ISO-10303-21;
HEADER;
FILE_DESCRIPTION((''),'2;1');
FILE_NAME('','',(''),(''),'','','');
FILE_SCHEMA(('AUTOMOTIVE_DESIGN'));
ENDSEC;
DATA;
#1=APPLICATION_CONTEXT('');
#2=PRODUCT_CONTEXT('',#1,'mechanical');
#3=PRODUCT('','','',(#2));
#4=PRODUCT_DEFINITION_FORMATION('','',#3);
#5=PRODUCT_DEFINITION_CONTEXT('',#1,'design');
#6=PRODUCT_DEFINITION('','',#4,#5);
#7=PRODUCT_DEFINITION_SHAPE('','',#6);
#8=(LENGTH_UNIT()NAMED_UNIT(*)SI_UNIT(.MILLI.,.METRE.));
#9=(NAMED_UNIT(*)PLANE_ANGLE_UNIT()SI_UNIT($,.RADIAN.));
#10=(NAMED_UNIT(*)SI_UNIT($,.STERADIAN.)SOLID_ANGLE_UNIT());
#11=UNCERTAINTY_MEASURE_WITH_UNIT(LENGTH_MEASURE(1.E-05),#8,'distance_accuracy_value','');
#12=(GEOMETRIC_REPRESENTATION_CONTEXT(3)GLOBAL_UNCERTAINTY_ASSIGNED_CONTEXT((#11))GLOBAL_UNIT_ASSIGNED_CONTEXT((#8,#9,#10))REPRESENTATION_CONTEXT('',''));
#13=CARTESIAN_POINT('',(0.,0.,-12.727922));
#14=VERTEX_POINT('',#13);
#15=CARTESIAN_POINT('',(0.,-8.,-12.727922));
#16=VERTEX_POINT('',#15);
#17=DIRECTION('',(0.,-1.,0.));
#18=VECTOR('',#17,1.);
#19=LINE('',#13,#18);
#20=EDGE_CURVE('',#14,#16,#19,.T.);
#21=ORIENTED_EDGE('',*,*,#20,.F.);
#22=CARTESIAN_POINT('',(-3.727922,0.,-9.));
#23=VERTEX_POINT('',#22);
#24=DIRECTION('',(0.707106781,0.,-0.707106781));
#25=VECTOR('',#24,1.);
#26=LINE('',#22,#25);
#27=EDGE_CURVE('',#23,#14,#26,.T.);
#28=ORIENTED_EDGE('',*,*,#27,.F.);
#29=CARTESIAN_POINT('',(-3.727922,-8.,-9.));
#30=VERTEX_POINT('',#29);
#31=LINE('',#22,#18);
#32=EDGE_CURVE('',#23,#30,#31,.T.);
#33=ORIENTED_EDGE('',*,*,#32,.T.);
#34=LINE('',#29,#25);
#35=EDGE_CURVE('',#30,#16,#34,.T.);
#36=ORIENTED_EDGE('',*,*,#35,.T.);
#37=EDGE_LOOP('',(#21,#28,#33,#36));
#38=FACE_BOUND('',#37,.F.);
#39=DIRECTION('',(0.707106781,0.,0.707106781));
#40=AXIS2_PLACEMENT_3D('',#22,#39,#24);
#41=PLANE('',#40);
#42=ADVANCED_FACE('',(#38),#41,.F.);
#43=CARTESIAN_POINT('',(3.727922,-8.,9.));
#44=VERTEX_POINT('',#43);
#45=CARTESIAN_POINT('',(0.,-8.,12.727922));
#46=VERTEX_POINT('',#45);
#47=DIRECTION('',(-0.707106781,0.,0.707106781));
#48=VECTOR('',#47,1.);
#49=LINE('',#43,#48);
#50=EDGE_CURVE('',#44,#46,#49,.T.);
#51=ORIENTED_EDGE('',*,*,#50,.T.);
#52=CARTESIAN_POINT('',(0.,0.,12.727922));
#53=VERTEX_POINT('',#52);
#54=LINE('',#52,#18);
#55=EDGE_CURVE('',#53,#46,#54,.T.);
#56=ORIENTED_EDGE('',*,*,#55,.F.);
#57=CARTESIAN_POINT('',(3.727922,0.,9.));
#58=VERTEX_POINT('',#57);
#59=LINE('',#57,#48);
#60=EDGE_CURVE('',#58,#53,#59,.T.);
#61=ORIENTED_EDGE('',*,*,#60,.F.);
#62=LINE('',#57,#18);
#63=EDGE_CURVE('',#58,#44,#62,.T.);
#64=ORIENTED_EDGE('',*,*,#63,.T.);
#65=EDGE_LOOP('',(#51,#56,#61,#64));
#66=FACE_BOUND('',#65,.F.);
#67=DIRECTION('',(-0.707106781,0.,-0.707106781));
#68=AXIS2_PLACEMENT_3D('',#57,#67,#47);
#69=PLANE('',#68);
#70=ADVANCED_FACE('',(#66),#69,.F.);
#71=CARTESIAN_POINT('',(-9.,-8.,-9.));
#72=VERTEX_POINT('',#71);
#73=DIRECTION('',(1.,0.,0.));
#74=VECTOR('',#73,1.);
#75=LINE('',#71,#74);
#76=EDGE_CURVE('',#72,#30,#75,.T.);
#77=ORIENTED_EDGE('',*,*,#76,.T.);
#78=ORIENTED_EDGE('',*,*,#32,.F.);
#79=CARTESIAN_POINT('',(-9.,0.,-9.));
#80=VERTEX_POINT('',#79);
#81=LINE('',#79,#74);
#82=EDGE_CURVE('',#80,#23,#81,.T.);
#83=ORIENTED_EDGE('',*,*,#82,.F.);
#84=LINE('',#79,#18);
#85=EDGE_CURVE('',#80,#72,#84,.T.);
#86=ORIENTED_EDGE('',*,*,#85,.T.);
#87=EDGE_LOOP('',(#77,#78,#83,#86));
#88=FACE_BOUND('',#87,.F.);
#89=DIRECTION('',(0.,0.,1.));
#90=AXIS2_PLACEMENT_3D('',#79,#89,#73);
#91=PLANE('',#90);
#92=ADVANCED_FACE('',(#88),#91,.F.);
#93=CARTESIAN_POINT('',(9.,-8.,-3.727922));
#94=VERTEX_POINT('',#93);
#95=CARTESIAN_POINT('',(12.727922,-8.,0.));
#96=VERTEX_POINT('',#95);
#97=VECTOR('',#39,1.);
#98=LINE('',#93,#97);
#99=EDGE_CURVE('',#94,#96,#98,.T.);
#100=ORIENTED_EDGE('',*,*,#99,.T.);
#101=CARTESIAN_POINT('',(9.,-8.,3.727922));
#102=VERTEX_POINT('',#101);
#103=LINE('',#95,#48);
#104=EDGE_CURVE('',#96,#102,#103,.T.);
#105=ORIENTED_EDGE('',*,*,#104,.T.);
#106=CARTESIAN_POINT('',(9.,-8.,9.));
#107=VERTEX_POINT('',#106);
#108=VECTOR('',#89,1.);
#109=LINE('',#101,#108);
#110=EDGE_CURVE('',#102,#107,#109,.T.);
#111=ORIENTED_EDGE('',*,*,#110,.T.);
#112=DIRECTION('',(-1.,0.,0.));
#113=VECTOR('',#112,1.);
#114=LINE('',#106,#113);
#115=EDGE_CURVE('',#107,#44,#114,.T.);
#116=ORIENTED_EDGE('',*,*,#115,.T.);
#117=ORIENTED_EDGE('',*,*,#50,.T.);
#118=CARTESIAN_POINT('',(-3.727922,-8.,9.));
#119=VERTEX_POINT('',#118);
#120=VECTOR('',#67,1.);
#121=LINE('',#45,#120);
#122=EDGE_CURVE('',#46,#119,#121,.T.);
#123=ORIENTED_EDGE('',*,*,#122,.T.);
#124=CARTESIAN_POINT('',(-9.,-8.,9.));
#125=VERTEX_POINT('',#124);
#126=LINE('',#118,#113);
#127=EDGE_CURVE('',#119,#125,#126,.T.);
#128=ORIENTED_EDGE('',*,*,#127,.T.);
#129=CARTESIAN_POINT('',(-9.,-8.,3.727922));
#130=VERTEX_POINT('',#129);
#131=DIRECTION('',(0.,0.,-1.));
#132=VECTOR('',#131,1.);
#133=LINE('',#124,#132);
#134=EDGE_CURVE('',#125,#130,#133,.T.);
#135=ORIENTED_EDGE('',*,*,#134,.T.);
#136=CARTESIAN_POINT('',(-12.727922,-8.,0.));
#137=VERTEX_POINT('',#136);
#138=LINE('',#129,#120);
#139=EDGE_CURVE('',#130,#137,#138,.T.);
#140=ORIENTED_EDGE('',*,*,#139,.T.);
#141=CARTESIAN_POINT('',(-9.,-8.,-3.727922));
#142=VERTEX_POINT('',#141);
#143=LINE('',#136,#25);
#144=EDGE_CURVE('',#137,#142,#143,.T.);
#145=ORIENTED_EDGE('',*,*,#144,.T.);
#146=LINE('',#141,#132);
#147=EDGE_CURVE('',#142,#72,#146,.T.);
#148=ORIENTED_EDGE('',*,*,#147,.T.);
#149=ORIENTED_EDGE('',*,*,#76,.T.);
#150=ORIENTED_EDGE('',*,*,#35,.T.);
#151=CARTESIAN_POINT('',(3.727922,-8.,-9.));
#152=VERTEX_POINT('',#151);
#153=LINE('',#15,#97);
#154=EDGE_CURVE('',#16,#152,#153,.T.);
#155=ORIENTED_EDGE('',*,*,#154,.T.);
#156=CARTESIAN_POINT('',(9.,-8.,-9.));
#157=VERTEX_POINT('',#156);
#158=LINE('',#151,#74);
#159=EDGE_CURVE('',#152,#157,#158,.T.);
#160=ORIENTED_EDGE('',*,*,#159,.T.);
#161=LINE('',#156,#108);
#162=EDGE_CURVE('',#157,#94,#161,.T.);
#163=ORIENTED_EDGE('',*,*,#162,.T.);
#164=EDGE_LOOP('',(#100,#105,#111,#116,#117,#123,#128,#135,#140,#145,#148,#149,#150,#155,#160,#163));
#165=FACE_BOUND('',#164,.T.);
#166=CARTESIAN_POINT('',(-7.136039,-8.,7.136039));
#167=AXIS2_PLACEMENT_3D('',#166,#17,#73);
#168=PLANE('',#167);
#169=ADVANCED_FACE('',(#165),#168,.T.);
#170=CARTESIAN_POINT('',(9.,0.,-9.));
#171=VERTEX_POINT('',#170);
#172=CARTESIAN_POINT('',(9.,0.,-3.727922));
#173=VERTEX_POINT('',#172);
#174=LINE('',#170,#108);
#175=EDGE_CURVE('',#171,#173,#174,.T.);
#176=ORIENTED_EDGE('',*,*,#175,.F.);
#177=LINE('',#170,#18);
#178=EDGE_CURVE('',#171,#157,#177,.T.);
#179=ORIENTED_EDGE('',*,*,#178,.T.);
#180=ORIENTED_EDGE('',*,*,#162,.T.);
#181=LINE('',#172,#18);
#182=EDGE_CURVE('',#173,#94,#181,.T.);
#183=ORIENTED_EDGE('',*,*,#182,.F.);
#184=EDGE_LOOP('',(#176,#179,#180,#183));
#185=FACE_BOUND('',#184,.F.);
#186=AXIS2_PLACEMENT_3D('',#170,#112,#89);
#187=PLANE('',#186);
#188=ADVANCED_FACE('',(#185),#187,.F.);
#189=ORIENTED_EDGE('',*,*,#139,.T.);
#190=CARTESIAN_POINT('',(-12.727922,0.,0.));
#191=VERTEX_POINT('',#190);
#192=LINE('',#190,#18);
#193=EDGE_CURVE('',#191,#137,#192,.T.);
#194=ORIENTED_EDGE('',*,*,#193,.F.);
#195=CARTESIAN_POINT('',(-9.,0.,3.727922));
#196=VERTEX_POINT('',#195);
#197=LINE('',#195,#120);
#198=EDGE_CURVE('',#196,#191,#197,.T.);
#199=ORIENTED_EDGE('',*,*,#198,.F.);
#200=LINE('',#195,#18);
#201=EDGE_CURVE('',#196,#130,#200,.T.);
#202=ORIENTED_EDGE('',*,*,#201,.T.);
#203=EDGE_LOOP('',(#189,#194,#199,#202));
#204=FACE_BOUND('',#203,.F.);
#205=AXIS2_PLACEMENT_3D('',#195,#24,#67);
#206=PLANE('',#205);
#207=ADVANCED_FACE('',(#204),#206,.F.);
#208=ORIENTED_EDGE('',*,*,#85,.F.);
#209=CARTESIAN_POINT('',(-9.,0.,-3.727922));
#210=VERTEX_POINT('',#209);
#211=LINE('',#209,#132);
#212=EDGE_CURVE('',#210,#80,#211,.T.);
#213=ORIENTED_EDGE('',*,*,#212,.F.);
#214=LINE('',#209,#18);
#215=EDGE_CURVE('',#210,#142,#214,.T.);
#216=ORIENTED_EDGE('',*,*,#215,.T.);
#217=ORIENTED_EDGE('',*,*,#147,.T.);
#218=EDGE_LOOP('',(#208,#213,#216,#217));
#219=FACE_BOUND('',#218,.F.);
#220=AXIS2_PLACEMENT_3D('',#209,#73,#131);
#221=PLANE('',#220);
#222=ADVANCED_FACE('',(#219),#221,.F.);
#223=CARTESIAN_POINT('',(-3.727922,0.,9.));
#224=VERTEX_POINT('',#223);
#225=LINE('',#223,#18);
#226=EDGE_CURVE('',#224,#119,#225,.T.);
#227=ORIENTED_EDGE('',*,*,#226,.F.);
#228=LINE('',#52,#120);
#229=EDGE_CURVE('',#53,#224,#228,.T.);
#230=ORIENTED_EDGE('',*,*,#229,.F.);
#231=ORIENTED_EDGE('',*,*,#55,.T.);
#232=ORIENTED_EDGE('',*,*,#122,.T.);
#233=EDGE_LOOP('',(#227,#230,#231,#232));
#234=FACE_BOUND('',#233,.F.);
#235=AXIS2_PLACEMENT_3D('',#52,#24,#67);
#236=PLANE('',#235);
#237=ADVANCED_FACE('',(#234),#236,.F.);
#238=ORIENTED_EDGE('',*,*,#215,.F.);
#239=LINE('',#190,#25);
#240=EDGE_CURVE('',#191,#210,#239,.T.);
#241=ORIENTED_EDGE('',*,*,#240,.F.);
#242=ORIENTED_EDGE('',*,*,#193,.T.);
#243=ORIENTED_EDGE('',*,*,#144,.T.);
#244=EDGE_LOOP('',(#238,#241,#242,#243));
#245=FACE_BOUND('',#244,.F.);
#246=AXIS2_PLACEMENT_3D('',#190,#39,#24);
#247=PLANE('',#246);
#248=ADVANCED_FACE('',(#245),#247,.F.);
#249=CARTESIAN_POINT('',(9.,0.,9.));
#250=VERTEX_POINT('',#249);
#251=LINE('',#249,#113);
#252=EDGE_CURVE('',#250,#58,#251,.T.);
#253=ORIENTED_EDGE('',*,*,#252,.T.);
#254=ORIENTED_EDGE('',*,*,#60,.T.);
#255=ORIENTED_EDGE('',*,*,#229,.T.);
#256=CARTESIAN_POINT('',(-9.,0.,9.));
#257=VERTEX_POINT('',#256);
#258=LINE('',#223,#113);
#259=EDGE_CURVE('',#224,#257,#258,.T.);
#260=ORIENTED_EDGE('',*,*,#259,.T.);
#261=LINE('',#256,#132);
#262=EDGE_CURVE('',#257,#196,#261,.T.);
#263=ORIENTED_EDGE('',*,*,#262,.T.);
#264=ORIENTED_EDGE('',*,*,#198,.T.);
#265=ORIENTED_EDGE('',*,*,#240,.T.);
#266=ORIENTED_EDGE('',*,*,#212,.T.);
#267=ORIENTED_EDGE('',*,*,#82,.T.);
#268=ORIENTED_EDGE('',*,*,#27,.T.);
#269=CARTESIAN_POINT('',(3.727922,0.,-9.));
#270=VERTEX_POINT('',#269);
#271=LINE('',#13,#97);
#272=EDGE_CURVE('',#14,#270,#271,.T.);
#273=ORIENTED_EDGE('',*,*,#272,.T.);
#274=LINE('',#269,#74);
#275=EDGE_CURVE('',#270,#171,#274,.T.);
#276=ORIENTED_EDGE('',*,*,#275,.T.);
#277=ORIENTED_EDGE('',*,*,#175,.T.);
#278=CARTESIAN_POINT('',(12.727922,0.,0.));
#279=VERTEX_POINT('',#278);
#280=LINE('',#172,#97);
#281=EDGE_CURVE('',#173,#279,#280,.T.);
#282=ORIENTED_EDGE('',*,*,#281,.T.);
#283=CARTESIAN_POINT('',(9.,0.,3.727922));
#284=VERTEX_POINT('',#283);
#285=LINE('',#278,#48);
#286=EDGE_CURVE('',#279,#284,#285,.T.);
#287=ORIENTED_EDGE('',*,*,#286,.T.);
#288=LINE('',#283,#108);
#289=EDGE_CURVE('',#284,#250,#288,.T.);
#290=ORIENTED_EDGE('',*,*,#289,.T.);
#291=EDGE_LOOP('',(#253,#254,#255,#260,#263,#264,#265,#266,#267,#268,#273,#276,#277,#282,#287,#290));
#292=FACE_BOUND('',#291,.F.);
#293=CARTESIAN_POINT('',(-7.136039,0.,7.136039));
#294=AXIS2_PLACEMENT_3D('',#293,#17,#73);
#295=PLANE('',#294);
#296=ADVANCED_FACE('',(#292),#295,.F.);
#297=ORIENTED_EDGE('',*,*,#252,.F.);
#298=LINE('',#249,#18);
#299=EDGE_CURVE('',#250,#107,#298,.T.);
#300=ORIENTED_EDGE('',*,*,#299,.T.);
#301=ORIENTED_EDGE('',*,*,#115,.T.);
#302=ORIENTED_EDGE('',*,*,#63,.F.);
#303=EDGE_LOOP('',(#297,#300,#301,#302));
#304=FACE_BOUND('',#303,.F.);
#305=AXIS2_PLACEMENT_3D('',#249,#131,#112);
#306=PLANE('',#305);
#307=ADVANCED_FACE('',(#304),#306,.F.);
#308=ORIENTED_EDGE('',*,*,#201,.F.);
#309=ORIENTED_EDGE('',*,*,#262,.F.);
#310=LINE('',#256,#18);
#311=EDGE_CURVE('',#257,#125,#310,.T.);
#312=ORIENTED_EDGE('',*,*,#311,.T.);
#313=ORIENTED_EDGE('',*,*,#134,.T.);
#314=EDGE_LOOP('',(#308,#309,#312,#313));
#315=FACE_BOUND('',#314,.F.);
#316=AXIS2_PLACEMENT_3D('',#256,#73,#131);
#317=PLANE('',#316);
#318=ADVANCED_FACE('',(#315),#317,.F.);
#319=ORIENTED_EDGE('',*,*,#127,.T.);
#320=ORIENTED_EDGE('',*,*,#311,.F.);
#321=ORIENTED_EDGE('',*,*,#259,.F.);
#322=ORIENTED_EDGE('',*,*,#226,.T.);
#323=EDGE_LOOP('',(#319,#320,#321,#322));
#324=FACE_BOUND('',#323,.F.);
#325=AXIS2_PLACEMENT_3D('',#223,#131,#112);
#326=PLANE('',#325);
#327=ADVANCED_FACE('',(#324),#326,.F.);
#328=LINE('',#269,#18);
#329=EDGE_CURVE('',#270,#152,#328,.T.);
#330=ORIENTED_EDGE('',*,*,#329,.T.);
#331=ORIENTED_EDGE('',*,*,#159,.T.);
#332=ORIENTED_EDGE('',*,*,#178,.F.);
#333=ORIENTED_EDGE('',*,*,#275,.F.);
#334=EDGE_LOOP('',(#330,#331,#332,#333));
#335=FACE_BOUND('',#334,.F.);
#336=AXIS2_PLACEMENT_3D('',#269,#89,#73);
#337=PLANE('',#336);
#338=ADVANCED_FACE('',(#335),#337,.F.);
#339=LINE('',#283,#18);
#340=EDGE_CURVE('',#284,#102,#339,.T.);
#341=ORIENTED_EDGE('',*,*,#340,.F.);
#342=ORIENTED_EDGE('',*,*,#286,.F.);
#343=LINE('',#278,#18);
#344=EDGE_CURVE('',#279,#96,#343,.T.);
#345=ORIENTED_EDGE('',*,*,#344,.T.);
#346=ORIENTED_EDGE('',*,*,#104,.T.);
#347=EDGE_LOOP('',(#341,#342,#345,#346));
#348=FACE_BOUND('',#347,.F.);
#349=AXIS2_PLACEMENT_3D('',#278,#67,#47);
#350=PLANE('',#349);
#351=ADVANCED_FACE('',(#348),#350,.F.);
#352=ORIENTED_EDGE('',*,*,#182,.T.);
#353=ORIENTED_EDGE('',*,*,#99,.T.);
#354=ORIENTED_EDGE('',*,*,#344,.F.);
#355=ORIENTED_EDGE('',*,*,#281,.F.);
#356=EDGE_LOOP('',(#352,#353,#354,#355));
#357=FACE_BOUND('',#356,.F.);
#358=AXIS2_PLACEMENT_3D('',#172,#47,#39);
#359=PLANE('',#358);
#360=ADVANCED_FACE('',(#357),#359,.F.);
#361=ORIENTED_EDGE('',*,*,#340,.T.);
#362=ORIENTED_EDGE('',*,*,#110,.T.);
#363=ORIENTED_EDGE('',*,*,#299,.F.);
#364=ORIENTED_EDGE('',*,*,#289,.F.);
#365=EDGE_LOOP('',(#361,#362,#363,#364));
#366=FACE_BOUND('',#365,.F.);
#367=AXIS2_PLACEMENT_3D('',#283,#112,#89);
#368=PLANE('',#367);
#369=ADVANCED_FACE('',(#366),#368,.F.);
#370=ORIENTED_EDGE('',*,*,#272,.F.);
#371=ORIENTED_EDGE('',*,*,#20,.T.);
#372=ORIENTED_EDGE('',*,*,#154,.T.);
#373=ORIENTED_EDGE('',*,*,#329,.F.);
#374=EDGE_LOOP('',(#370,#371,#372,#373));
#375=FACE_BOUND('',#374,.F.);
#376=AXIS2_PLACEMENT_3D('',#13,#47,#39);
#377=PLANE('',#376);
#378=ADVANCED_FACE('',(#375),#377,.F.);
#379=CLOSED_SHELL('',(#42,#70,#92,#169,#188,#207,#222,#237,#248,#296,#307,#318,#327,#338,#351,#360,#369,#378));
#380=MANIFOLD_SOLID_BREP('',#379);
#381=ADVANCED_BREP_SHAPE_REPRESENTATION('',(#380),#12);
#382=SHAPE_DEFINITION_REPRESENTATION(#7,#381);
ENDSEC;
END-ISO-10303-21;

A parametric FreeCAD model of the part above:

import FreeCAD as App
import Part
import Sketcher

V = App.Vector
Q = App.Units.Quantity


def add_polygon(sketch, points):
    """Adds a closed chain of lines whose ends are joined by coincident constraints."""
    first, n = sketch.GeometryCount, len(points)
    for a, b in zip(points, points[1:] + points[:1]):
        sketch.addGeometry(Part.LineSegment(App.Vector(*a, 0), App.Vector(*b, 0)), False)
    for i in range(n):
        sketch.addConstraint(Sketcher.Constraint("Coincident", first + i, 2, first + (i + 1) % n, 1))

doc = App.newDocument("Part")
body = doc.addObject("PartDesign::Body", "Body")

sketch1 = body.newObject("Sketcher::SketchObject", "Sketch")
sketch1.AttachmentSupport = (doc.getObject("XZ_Plane"), [""])
sketch1.MapMode = "FlatFace"
add_polygon(sketch1, [(-4, 9), (-9, 9), (-9, 4), (-13, 0), (-9, -4), (-9, -9), (-4, -9), (0, -13), (4, -9), (9, -9), (9, -4), (13, 0), (9, 4), (9, 9), (4, 9), (0, 13)])
sketch1.addConstraint(Sketcher.Constraint("Horizontal", 0))
sketch1.addConstraint(Sketcher.Constraint("Vertical", 1))
sketch1.addConstraint(Sketcher.Constraint("Vertical", 4))
sketch1.addConstraint(Sketcher.Constraint("Horizontal", 5))
sketch1.addConstraint(Sketcher.Constraint("Horizontal", 8))
sketch1.addConstraint(Sketcher.Constraint("Vertical", 9))
sketch1.addConstraint(Sketcher.Constraint("Vertical", 12))
sketch1.addConstraint(Sketcher.Constraint("Horizontal", 13))
sketch1.addConstraint(Sketcher.Constraint("Symmetric", 0, 2, 8, 2, -1, 1))
sketch1.addConstraint(Sketcher.Constraint("Symmetric", 2, 2, 10, 2, -1, 1))
sketch1.addConstraint(Sketcher.Constraint("Symmetric", 3, 2, 11, 2, -1, 1))
sketch1.addConstraint(Sketcher.Constraint("Symmetric", 5, 2, 13, 2, -1, 1))
sketch1.addConstraint(Sketcher.Constraint("Symmetric", 6, 2, 14, 2, -1, 1))
sketch1.addConstraint(Sketcher.Constraint("Symmetric", 5, 2, 7, 2, -2))
sketch1.addConstraint(Sketcher.Constraint("Symmetric", 3, 2, 9, 2, -2))
sketch1.addConstraint(Sketcher.Constraint("PointOnObject", 2, 2, -1))
sketch1.addConstraint(Sketcher.Constraint("PointOnObject", 6, 2, -2))
sketch1.addConstraint(Sketcher.Constraint("Perpendicular", 2, 3))
sketch1.addConstraint(Sketcher.Constraint("Parallel", 3, 6))
sketch1.addConstraint(Sketcher.Constraint("Perpendicular", 6, 7))
sketch1.addConstraint(Sketcher.Constraint("Perpendicular", 14, 15))
sketch1.addConstraint(Sketcher.Constraint("Equal", 13, 1))
sketch1.addConstraint(Sketcher.Constraint("Equal", 3, 6))
sketch1.addConstraint(Sketcher.Constraint("DistanceX", 0, 2, -1, 1, Q("9 mm")))
sketch1.addConstraint(Sketcher.Constraint("DistanceX", 0, 2, 0, 1, Q("5.272078 mm")))
pad1 = body.newObject("PartDesign::Pad", "Pad")
pad1.Profile = sketch1
pad1.Length = 8

doc.recompute()
